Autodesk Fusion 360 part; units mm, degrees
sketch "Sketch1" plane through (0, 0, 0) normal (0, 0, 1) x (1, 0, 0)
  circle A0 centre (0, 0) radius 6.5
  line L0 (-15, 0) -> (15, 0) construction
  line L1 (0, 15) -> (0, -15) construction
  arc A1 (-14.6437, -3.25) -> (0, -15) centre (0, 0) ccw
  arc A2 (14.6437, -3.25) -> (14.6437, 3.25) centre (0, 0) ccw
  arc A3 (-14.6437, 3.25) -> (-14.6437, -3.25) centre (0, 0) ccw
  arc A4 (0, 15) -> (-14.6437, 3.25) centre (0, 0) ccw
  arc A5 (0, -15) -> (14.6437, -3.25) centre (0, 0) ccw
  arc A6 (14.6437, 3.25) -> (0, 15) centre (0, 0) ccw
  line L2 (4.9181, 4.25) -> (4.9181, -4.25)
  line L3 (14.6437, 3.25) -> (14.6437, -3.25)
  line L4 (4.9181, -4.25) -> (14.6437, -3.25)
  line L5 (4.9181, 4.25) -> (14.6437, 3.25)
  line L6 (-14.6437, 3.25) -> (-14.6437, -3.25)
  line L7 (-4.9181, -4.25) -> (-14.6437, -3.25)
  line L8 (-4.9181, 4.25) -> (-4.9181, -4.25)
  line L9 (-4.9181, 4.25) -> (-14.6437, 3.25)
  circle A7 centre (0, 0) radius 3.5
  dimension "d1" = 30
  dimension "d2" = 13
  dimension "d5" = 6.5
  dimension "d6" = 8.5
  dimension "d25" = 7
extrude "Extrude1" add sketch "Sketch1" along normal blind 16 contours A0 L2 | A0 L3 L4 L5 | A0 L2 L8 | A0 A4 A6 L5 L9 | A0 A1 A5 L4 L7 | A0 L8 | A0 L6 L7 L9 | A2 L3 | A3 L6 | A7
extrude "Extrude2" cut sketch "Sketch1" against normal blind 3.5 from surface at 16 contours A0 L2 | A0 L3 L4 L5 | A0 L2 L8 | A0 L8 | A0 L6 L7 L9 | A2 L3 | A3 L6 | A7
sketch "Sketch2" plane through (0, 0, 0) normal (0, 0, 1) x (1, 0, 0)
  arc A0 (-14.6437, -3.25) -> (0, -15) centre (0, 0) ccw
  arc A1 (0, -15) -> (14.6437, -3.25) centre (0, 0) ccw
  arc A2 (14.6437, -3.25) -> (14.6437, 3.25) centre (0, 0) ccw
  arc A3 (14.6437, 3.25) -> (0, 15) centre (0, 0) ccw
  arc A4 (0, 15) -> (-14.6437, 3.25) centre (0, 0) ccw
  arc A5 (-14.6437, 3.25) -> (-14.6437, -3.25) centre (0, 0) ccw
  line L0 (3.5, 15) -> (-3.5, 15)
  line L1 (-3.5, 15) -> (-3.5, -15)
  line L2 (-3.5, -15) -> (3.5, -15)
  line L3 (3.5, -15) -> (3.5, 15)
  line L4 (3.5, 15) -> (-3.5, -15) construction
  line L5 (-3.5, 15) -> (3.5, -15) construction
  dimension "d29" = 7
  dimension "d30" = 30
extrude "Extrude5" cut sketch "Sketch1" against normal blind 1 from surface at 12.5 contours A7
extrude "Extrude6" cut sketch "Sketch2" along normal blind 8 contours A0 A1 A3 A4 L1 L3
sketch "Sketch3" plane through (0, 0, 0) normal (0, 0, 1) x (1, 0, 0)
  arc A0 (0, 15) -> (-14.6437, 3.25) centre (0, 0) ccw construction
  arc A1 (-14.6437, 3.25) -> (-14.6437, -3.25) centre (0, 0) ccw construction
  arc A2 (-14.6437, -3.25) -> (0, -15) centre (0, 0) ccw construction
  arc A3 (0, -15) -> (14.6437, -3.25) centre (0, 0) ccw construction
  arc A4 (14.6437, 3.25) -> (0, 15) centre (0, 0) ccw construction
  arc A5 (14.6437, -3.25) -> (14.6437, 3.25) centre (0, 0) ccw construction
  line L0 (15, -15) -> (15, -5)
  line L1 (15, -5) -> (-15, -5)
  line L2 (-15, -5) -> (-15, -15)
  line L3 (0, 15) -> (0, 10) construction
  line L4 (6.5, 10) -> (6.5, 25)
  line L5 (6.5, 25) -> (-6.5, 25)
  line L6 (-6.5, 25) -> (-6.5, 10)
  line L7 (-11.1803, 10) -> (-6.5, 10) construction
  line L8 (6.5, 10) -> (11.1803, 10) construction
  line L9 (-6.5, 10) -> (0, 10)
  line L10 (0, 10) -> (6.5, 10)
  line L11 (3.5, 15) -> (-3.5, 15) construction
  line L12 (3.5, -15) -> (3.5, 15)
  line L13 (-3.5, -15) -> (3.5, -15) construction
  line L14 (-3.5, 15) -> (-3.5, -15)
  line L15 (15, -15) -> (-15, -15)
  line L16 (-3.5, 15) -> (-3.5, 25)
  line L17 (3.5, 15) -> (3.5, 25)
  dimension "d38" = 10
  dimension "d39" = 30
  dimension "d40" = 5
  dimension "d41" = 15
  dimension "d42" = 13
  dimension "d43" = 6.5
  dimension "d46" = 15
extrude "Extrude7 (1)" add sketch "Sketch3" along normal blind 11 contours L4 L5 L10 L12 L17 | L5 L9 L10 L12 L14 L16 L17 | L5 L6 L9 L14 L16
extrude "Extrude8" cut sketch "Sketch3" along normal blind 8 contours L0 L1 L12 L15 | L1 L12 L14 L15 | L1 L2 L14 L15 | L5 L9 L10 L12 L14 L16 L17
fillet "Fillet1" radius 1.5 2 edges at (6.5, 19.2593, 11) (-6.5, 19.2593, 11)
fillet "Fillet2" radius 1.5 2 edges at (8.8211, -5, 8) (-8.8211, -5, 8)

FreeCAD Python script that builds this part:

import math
import FreeCAD as App
import Part
import Sketcher

V = App.Vector
Q = App.Units.Quantity


def edges_at(feature, points):
    """Names of the edges that pass closest to the given points."""
    edges = feature.Shape.Edges
    near = lambda p: min(range(len(edges)), key=lambda i: edges[i].distToShape(Part.Vertex(*p))[0])
    return sorted({f"Edge{near(p) + 1}" for p in points})


def add_polygon(sketch, points):
    """Adds a closed chain of lines whose ends are joined by coincident constraints."""
    first, n = sketch.GeometryCount, len(points)
    for a, b in zip(points, points[1:] + points[:1]):
        sketch.addGeometry(Part.LineSegment(App.Vector(*a, 0), App.Vector(*b, 0)), False)
    for i in range(n):
        sketch.addConstraint(Sketcher.Constraint("Coincident", first + i, 2, first + (i + 1) % n, 1))

doc = App.newDocument("Part")
body = doc.addObject("PartDesign::Body", "Body")

sketch1 = doc.addObject("Sketcher::SketchObject", "Sketch")
body.addObject(sketch1)
sketch1.AttachmentSupport = (doc.XY_Plane, [""])
sketch1.MapMode = "FlatFace"
sketch1.addGeometry([
    Part.ArcOfCircle(Part.Circle(V(0, 0, 0), V(0, 0, 1), 15), math.radians(-90), math.radians(-13)),
    Part.ArcOfCircle(Part.Circle(V(0, 0, 0), V(0, 0, 1), 15), math.radians(-13), math.radians(13)),
    Part.ArcOfCircle(Part.Circle(V(0, 0, 0), V(0, 0, 1), 15), math.radians(13), math.radians(90)),
    Part.ArcOfCircle(Part.Circle(V(0, 0, 0), V(0, 0, 1), 15), math.radians(90), math.radians(167)),
    Part.ArcOfCircle(Part.Circle(V(0, 0, 0), V(0, 0, 1), 15), math.radians(167), math.radians(193)),
    Part.ArcOfCircle(Part.Circle(V(0, 0, 0), V(0, 0, 1), 15), math.radians(-167), math.radians(-90)),
], False)
sketch1.addConstraint([
    Sketcher.Constraint("Tangent", 0, 2, 1, 1),
    Sketcher.Constraint("Tangent", 1, 2, 2, 1),
    Sketcher.Constraint("Tangent", 2, 2, 3, 1),
    Sketcher.Constraint("Tangent", 3, 2, 4, 1),
    Sketcher.Constraint("Tangent", 4, 2, 5, 1),
    Sketcher.Constraint("Tangent", 5, 2, 0, 1),
    Sketcher.Constraint("Coincident", 0, 3, -1, 1),
    Sketcher.Constraint("Coincident", 2, 3, -1, 1),
    Sketcher.Constraint("Equal", 2, 3),
    Sketcher.Constraint("PointOnObject", 2, 2, -2),
    Sketcher.Constraint("PointOnObject", 5, 2, -2),
    Sketcher.Constraint("Horizontal", 1, 2, 3, 2),
    Sketcher.Constraint("Horizontal", 0, 2, 4, 2),
    Sketcher.Constraint("Vertical", 0, 2, 1, 2),
    Sketcher.Constraint("Radius", 0, Q("15 mm")),
    Sketcher.Constraint("DistanceY", 0, 2, 1, 2, Q("6.5 mm")),
])
pad1 = doc.addObject("PartDesign::Pad", "Pad")
body.addObject(pad1)
pad1.Profile = sketch1
pad1.Length = 16

sketch2 = doc.addObject("Sketcher::SketchObject", "Sketch001")
body.addObject(sketch2)
sketch2.AttachmentSupport = (doc.XY_Plane, [""])
sketch2.MapMode = "FlatFace"
sketch2.AttachmentOffset = App.Placement(V(0, 0, 16), App.Rotation())
sketch2.addGeometry([
    Part.LineSegment(V(5, -4, 0), V(15, -3, 0)),
    Part.ArcOfCircle(Part.Circle(V(0, 0, 0), V(0, 0, 1), 15), math.radians(-13), math.radians(13)),
    Part.LineSegment(V(15, 3, 0), V(5, 4, 0)),
    Part.ArcOfCircle(Part.Circle(V(0, 0, 0), V(0, 0, 1), 6), math.radians(41), math.radians(139)),
    Part.LineSegment(V(-5, 4, 0), V(-15, 3, 0)),
    Part.ArcOfCircle(Part.Circle(V(0, 0, 0), V(0, 0, 1), 15), math.radians(167), math.radians(193)),
    Part.LineSegment(V(-15, -3, 0), V(-5, -4, 0)),
    Part.ArcOfCircle(Part.Circle(V(0, 0, 0), V(0, 0, 1), 6), math.radians(-139), math.radians(-41)),
], False)
sketch2.addConstraint([
    Sketcher.Constraint("Coincident", 0, 2, 1, 1),
    Sketcher.Constraint("Coincident", 1, 2, 2, 1),
    Sketcher.Constraint("Coincident", 2, 2, 3, 1),
    Sketcher.Constraint("Coincident", 3, 2, 4, 1),
    Sketcher.Constraint("Coincident", 4, 2, 5, 1),
    Sketcher.Constraint("Coincident", 5, 2, 6, 1),
    Sketcher.Constraint("Coincident", 6, 2, 7, 1),
    Sketcher.Constraint("Coincident", 7, 2, 0, 1),
    Sketcher.Constraint("Coincident", 1, 3, -1, 1),
    Sketcher.Constraint("Coincident", 3, 3, -1, 1),
    Sketcher.Constraint("Coincident", 5, 3, -1, 1),
    Sketcher.Constraint("Coincident", 7, 3, -1, 1),
    Sketcher.Constraint("Equal", 1, 5),
    Sketcher.Constraint("Equal", 3, 7),
    Sketcher.Constraint("Parallel", 0, 4),
    Sketcher.Constraint("Parallel", 2, 6),
    Sketcher.Constraint("Horizontal", 2, 2, 3, 2),
    Sketcher.Constraint("Horizontal", 1, 2, 4, 2),
    Sketcher.Constraint("Horizontal", 0, 2, 5, 2),
    Sketcher.Constraint("Vertical", 0, 2, 1, 2),
    Sketcher.Constraint("Radius", 1, Q("15 mm")),
    Sketcher.Constraint("Radius", 3, Q("6.5 mm")),
    Sketcher.Constraint("DistanceY", 0, 2, 1, 2, Q("6.5 mm")),
    Sketcher.Constraint("DistanceY", 6, 2, 3, 2, Q("8.5 mm")),
])
pocket1 = doc.addObject("PartDesign::Pocket", "Pocket")
body.addObject(pocket1)
pocket1.Profile = sketch2
pocket1.Length = 3.5

sketch3 = doc.addObject("Sketcher::SketchObject", "Sketch002")
body.addObject(sketch3)
sketch3.AttachmentSupport = (doc.XY_Plane, [""])
sketch3.MapMode = "FlatFace"
sketch3.AttachmentOffset = App.Placement(V(0, 0, 12.5), App.Rotation())
sketch3.addGeometry(Part.Circle(V(0, 0, 0), V(0, 0, 1), 3.5), False)
sketch3.addConstraint([
    Sketcher.Constraint("Coincident", 0, 3, -1, 1),
    Sketcher.Constraint("Diameter", 0, Q("7 mm")),
])
pocket2 = doc.addObject("PartDesign::Pocket", "Pocket001")
body.addObject(pocket2)
pocket2.Profile = sketch3
pocket2.Length = 1

sketch4 = doc.addObject("Sketcher::SketchObject", "Sketch003")
body.addObject(sketch4)
sketch4.AttachmentSupport = (doc.XY_Plane, [""])
sketch4.MapMode = "FlatFace"
sketch4.addGeometry([
    Part.LineSegment(V(-3.5, 14.6, 0), V(-3.5, -14.6, 0)),
    Part.ArcOfCircle(Part.Circle(V(0, 0, 0), V(0, 0, 1), 15), math.radians(-103.49), math.radians(-90)),
    Part.ArcOfCircle(Part.Circle(V(0, 0, 0), V(0, 0, 1), 15), math.radians(-90), math.radians(-76.51)),
    Part.LineSegment(V(3.5, -14.6, 0), V(3.5, 14.6, 0)),
    Part.ArcOfCircle(Part.Circle(V(0, 0, 0), V(0, 0, 1), 15), math.radians(76.51), math.radians(90)),
    Part.ArcOfCircle(Part.Circle(V(0, 0, 0), V(0, 0, 1), 15), math.radians(90), math.radians(103.49)),
], False)
sketch4.addConstraint([
    Sketcher.Constraint("Coincident", 0, 2, 1, 1),
    Sketcher.Constraint("Tangent", 1, 2, 2, 1),
    Sketcher.Constraint("Coincident", 2, 2, 3, 1),
    Sketcher.Constraint("Coincident", 3, 2, 4, 1),
    Sketcher.Constraint("Tangent", 4, 2, 5, 1),
    Sketcher.Constraint("Coincident", 5, 2, 0, 1),
    Sketcher.Constraint("Vertical", 0),
    Sketcher.Constraint("Vertical", 3),
    Sketcher.Constraint("Coincident", 1, 3, -1, 1),
    Sketcher.Constraint("Coincident", 4, 3, -1, 1),
    Sketcher.Constraint("Equal", 1, 2),
    Sketcher.Constraint("Equal", 2, 4),
    Sketcher.Constraint("Equal", 4, 5),
    Sketcher.Constraint("PointOnObject", 1, 2, -2),
    Sketcher.Constraint("PointOnObject", 4, 2, -2),
    Sketcher.Constraint("Horizontal", 0, 2, 2, 2),
    Sketcher.Constraint("Radius", 1, Q("15 mm")),
    Sketcher.Constraint("DistanceX", 0, 2, 2, 2, Q("7 mm")),
])
pocket3 = doc.addObject("PartDesign::Pocket", "Pocket002")
body.addObject(pocket3)
pocket3.Profile = sketch4
pocket3.Length = 8
pocket3.Reversed = True

sketch5 = doc.addObject("Sketcher::SketchObject", "Sketch004")
body.addObject(sketch5)
sketch5.AttachmentSupport = (doc.XY_Plane, [""])
sketch5.MapMode = "FlatFace"
add_polygon(sketch5, [(6, 25), (-6, 25), (-6, 10), (6, 10)])
sketch5.addConstraint([
    Sketcher.Constraint("Horizontal", 0),
    Sketcher.Constraint("Vertical", 1),
    Sketcher.Constraint("Horizontal", 2),
    Sketcher.Constraint("Vertical", 3),
    Sketcher.Constraint("DistanceX", 0, 2, 0, 1, Q("13 mm")),
    Sketcher.Constraint("DistanceY", 1, 2, 1, 1, Q("15 mm")),
    Sketcher.Constraint("DistanceY", -1, 1, 1, 2, Q("10 mm")),
    Sketcher.Constraint("DistanceX", 0, 2, -1, 1, Q("6.5 mm")),
])
pad2 = doc.addObject("PartDesign::Pad", "Pad001")
body.addObject(pad2)
pad2.Profile = sketch5
pad2.Length = 11

sketch6 = doc.addObject("Sketcher::SketchObject", "Sketch005")
body.addObject(sketch6)
sketch6.AttachmentSupport = (doc.XY_Plane, [""])
sketch6.MapMode = "FlatFace"
add_polygon(sketch6, [(15, -15), (15, -5), (-15, -5), (-15, -15)])
add_polygon(sketch6, [(-4, 10), (4, 10), (4, 25), (-4, 25)])
sketch6.addConstraint([
    Sketcher.Constraint("Vertical", 0),
    Sketcher.Constraint("Horizontal", 1),
    Sketcher.Constraint("Vertical", 2),
    Sketcher.Constraint("Horizontal", 3),
    Sketcher.Constraint("Horizontal", 4),
    Sketcher.Constraint("Vertical", 5),
    Sketcher.Constraint("Horizontal", 6),
    Sketcher.Constraint("Vertical", 7),
    Sketcher.Constraint("DistanceX", 1, 2, 1, 1, Q("30 mm")),
    Sketcher.Constraint("DistanceY", 0, 1, 0, 2, Q("10 mm")),
    Sketcher.Constraint("DistanceY", 5, 1, 5, 2, Q("15 mm")),
    Sketcher.Constraint("DistanceX", -1, 1, 0, 2, Q("15 mm")),
    Sketcher.Constraint("DistanceY", 0, 2, -1, 1, Q("5 mm")),
    Sketcher.Constraint("DistanceY", -1, 1, 4, 2, Q("10 mm")),
    Sketcher.Constraint("DistanceX", 4, 1, 4, 2, Q("7 mm")),
    Sketcher.Constraint("DistanceX", -1, 1, 4, 2, Q("3.5 mm")),
])
pocket4 = doc.addObject("PartDesign::Pocket", "Pocket003")
body.addObject(pocket4)
pocket4.Profile = sketch6
pocket4.Length = 8
pocket4.Reversed = True
doc.recompute()

fillet = doc.addObject("PartDesign::Fillet", "Fillet")
body.addObject(fillet)
fillet.Base = (pocket4, edges_at(pocket4, [(6.5, 19.259, 11), (-6.5, 19.259, 11)]))
fillet.Radius = 1.5
doc.recompute()

fillet2 = doc.addObject("PartDesign::Fillet", "Fillet001")
body.addObject(fillet2)
fillet2.Base = (fillet, edges_at(fillet, [(8.821, -5, 8), (-8.821, -5, 8)]))
fillet2.Radius = 1.5

doc.recompute()
